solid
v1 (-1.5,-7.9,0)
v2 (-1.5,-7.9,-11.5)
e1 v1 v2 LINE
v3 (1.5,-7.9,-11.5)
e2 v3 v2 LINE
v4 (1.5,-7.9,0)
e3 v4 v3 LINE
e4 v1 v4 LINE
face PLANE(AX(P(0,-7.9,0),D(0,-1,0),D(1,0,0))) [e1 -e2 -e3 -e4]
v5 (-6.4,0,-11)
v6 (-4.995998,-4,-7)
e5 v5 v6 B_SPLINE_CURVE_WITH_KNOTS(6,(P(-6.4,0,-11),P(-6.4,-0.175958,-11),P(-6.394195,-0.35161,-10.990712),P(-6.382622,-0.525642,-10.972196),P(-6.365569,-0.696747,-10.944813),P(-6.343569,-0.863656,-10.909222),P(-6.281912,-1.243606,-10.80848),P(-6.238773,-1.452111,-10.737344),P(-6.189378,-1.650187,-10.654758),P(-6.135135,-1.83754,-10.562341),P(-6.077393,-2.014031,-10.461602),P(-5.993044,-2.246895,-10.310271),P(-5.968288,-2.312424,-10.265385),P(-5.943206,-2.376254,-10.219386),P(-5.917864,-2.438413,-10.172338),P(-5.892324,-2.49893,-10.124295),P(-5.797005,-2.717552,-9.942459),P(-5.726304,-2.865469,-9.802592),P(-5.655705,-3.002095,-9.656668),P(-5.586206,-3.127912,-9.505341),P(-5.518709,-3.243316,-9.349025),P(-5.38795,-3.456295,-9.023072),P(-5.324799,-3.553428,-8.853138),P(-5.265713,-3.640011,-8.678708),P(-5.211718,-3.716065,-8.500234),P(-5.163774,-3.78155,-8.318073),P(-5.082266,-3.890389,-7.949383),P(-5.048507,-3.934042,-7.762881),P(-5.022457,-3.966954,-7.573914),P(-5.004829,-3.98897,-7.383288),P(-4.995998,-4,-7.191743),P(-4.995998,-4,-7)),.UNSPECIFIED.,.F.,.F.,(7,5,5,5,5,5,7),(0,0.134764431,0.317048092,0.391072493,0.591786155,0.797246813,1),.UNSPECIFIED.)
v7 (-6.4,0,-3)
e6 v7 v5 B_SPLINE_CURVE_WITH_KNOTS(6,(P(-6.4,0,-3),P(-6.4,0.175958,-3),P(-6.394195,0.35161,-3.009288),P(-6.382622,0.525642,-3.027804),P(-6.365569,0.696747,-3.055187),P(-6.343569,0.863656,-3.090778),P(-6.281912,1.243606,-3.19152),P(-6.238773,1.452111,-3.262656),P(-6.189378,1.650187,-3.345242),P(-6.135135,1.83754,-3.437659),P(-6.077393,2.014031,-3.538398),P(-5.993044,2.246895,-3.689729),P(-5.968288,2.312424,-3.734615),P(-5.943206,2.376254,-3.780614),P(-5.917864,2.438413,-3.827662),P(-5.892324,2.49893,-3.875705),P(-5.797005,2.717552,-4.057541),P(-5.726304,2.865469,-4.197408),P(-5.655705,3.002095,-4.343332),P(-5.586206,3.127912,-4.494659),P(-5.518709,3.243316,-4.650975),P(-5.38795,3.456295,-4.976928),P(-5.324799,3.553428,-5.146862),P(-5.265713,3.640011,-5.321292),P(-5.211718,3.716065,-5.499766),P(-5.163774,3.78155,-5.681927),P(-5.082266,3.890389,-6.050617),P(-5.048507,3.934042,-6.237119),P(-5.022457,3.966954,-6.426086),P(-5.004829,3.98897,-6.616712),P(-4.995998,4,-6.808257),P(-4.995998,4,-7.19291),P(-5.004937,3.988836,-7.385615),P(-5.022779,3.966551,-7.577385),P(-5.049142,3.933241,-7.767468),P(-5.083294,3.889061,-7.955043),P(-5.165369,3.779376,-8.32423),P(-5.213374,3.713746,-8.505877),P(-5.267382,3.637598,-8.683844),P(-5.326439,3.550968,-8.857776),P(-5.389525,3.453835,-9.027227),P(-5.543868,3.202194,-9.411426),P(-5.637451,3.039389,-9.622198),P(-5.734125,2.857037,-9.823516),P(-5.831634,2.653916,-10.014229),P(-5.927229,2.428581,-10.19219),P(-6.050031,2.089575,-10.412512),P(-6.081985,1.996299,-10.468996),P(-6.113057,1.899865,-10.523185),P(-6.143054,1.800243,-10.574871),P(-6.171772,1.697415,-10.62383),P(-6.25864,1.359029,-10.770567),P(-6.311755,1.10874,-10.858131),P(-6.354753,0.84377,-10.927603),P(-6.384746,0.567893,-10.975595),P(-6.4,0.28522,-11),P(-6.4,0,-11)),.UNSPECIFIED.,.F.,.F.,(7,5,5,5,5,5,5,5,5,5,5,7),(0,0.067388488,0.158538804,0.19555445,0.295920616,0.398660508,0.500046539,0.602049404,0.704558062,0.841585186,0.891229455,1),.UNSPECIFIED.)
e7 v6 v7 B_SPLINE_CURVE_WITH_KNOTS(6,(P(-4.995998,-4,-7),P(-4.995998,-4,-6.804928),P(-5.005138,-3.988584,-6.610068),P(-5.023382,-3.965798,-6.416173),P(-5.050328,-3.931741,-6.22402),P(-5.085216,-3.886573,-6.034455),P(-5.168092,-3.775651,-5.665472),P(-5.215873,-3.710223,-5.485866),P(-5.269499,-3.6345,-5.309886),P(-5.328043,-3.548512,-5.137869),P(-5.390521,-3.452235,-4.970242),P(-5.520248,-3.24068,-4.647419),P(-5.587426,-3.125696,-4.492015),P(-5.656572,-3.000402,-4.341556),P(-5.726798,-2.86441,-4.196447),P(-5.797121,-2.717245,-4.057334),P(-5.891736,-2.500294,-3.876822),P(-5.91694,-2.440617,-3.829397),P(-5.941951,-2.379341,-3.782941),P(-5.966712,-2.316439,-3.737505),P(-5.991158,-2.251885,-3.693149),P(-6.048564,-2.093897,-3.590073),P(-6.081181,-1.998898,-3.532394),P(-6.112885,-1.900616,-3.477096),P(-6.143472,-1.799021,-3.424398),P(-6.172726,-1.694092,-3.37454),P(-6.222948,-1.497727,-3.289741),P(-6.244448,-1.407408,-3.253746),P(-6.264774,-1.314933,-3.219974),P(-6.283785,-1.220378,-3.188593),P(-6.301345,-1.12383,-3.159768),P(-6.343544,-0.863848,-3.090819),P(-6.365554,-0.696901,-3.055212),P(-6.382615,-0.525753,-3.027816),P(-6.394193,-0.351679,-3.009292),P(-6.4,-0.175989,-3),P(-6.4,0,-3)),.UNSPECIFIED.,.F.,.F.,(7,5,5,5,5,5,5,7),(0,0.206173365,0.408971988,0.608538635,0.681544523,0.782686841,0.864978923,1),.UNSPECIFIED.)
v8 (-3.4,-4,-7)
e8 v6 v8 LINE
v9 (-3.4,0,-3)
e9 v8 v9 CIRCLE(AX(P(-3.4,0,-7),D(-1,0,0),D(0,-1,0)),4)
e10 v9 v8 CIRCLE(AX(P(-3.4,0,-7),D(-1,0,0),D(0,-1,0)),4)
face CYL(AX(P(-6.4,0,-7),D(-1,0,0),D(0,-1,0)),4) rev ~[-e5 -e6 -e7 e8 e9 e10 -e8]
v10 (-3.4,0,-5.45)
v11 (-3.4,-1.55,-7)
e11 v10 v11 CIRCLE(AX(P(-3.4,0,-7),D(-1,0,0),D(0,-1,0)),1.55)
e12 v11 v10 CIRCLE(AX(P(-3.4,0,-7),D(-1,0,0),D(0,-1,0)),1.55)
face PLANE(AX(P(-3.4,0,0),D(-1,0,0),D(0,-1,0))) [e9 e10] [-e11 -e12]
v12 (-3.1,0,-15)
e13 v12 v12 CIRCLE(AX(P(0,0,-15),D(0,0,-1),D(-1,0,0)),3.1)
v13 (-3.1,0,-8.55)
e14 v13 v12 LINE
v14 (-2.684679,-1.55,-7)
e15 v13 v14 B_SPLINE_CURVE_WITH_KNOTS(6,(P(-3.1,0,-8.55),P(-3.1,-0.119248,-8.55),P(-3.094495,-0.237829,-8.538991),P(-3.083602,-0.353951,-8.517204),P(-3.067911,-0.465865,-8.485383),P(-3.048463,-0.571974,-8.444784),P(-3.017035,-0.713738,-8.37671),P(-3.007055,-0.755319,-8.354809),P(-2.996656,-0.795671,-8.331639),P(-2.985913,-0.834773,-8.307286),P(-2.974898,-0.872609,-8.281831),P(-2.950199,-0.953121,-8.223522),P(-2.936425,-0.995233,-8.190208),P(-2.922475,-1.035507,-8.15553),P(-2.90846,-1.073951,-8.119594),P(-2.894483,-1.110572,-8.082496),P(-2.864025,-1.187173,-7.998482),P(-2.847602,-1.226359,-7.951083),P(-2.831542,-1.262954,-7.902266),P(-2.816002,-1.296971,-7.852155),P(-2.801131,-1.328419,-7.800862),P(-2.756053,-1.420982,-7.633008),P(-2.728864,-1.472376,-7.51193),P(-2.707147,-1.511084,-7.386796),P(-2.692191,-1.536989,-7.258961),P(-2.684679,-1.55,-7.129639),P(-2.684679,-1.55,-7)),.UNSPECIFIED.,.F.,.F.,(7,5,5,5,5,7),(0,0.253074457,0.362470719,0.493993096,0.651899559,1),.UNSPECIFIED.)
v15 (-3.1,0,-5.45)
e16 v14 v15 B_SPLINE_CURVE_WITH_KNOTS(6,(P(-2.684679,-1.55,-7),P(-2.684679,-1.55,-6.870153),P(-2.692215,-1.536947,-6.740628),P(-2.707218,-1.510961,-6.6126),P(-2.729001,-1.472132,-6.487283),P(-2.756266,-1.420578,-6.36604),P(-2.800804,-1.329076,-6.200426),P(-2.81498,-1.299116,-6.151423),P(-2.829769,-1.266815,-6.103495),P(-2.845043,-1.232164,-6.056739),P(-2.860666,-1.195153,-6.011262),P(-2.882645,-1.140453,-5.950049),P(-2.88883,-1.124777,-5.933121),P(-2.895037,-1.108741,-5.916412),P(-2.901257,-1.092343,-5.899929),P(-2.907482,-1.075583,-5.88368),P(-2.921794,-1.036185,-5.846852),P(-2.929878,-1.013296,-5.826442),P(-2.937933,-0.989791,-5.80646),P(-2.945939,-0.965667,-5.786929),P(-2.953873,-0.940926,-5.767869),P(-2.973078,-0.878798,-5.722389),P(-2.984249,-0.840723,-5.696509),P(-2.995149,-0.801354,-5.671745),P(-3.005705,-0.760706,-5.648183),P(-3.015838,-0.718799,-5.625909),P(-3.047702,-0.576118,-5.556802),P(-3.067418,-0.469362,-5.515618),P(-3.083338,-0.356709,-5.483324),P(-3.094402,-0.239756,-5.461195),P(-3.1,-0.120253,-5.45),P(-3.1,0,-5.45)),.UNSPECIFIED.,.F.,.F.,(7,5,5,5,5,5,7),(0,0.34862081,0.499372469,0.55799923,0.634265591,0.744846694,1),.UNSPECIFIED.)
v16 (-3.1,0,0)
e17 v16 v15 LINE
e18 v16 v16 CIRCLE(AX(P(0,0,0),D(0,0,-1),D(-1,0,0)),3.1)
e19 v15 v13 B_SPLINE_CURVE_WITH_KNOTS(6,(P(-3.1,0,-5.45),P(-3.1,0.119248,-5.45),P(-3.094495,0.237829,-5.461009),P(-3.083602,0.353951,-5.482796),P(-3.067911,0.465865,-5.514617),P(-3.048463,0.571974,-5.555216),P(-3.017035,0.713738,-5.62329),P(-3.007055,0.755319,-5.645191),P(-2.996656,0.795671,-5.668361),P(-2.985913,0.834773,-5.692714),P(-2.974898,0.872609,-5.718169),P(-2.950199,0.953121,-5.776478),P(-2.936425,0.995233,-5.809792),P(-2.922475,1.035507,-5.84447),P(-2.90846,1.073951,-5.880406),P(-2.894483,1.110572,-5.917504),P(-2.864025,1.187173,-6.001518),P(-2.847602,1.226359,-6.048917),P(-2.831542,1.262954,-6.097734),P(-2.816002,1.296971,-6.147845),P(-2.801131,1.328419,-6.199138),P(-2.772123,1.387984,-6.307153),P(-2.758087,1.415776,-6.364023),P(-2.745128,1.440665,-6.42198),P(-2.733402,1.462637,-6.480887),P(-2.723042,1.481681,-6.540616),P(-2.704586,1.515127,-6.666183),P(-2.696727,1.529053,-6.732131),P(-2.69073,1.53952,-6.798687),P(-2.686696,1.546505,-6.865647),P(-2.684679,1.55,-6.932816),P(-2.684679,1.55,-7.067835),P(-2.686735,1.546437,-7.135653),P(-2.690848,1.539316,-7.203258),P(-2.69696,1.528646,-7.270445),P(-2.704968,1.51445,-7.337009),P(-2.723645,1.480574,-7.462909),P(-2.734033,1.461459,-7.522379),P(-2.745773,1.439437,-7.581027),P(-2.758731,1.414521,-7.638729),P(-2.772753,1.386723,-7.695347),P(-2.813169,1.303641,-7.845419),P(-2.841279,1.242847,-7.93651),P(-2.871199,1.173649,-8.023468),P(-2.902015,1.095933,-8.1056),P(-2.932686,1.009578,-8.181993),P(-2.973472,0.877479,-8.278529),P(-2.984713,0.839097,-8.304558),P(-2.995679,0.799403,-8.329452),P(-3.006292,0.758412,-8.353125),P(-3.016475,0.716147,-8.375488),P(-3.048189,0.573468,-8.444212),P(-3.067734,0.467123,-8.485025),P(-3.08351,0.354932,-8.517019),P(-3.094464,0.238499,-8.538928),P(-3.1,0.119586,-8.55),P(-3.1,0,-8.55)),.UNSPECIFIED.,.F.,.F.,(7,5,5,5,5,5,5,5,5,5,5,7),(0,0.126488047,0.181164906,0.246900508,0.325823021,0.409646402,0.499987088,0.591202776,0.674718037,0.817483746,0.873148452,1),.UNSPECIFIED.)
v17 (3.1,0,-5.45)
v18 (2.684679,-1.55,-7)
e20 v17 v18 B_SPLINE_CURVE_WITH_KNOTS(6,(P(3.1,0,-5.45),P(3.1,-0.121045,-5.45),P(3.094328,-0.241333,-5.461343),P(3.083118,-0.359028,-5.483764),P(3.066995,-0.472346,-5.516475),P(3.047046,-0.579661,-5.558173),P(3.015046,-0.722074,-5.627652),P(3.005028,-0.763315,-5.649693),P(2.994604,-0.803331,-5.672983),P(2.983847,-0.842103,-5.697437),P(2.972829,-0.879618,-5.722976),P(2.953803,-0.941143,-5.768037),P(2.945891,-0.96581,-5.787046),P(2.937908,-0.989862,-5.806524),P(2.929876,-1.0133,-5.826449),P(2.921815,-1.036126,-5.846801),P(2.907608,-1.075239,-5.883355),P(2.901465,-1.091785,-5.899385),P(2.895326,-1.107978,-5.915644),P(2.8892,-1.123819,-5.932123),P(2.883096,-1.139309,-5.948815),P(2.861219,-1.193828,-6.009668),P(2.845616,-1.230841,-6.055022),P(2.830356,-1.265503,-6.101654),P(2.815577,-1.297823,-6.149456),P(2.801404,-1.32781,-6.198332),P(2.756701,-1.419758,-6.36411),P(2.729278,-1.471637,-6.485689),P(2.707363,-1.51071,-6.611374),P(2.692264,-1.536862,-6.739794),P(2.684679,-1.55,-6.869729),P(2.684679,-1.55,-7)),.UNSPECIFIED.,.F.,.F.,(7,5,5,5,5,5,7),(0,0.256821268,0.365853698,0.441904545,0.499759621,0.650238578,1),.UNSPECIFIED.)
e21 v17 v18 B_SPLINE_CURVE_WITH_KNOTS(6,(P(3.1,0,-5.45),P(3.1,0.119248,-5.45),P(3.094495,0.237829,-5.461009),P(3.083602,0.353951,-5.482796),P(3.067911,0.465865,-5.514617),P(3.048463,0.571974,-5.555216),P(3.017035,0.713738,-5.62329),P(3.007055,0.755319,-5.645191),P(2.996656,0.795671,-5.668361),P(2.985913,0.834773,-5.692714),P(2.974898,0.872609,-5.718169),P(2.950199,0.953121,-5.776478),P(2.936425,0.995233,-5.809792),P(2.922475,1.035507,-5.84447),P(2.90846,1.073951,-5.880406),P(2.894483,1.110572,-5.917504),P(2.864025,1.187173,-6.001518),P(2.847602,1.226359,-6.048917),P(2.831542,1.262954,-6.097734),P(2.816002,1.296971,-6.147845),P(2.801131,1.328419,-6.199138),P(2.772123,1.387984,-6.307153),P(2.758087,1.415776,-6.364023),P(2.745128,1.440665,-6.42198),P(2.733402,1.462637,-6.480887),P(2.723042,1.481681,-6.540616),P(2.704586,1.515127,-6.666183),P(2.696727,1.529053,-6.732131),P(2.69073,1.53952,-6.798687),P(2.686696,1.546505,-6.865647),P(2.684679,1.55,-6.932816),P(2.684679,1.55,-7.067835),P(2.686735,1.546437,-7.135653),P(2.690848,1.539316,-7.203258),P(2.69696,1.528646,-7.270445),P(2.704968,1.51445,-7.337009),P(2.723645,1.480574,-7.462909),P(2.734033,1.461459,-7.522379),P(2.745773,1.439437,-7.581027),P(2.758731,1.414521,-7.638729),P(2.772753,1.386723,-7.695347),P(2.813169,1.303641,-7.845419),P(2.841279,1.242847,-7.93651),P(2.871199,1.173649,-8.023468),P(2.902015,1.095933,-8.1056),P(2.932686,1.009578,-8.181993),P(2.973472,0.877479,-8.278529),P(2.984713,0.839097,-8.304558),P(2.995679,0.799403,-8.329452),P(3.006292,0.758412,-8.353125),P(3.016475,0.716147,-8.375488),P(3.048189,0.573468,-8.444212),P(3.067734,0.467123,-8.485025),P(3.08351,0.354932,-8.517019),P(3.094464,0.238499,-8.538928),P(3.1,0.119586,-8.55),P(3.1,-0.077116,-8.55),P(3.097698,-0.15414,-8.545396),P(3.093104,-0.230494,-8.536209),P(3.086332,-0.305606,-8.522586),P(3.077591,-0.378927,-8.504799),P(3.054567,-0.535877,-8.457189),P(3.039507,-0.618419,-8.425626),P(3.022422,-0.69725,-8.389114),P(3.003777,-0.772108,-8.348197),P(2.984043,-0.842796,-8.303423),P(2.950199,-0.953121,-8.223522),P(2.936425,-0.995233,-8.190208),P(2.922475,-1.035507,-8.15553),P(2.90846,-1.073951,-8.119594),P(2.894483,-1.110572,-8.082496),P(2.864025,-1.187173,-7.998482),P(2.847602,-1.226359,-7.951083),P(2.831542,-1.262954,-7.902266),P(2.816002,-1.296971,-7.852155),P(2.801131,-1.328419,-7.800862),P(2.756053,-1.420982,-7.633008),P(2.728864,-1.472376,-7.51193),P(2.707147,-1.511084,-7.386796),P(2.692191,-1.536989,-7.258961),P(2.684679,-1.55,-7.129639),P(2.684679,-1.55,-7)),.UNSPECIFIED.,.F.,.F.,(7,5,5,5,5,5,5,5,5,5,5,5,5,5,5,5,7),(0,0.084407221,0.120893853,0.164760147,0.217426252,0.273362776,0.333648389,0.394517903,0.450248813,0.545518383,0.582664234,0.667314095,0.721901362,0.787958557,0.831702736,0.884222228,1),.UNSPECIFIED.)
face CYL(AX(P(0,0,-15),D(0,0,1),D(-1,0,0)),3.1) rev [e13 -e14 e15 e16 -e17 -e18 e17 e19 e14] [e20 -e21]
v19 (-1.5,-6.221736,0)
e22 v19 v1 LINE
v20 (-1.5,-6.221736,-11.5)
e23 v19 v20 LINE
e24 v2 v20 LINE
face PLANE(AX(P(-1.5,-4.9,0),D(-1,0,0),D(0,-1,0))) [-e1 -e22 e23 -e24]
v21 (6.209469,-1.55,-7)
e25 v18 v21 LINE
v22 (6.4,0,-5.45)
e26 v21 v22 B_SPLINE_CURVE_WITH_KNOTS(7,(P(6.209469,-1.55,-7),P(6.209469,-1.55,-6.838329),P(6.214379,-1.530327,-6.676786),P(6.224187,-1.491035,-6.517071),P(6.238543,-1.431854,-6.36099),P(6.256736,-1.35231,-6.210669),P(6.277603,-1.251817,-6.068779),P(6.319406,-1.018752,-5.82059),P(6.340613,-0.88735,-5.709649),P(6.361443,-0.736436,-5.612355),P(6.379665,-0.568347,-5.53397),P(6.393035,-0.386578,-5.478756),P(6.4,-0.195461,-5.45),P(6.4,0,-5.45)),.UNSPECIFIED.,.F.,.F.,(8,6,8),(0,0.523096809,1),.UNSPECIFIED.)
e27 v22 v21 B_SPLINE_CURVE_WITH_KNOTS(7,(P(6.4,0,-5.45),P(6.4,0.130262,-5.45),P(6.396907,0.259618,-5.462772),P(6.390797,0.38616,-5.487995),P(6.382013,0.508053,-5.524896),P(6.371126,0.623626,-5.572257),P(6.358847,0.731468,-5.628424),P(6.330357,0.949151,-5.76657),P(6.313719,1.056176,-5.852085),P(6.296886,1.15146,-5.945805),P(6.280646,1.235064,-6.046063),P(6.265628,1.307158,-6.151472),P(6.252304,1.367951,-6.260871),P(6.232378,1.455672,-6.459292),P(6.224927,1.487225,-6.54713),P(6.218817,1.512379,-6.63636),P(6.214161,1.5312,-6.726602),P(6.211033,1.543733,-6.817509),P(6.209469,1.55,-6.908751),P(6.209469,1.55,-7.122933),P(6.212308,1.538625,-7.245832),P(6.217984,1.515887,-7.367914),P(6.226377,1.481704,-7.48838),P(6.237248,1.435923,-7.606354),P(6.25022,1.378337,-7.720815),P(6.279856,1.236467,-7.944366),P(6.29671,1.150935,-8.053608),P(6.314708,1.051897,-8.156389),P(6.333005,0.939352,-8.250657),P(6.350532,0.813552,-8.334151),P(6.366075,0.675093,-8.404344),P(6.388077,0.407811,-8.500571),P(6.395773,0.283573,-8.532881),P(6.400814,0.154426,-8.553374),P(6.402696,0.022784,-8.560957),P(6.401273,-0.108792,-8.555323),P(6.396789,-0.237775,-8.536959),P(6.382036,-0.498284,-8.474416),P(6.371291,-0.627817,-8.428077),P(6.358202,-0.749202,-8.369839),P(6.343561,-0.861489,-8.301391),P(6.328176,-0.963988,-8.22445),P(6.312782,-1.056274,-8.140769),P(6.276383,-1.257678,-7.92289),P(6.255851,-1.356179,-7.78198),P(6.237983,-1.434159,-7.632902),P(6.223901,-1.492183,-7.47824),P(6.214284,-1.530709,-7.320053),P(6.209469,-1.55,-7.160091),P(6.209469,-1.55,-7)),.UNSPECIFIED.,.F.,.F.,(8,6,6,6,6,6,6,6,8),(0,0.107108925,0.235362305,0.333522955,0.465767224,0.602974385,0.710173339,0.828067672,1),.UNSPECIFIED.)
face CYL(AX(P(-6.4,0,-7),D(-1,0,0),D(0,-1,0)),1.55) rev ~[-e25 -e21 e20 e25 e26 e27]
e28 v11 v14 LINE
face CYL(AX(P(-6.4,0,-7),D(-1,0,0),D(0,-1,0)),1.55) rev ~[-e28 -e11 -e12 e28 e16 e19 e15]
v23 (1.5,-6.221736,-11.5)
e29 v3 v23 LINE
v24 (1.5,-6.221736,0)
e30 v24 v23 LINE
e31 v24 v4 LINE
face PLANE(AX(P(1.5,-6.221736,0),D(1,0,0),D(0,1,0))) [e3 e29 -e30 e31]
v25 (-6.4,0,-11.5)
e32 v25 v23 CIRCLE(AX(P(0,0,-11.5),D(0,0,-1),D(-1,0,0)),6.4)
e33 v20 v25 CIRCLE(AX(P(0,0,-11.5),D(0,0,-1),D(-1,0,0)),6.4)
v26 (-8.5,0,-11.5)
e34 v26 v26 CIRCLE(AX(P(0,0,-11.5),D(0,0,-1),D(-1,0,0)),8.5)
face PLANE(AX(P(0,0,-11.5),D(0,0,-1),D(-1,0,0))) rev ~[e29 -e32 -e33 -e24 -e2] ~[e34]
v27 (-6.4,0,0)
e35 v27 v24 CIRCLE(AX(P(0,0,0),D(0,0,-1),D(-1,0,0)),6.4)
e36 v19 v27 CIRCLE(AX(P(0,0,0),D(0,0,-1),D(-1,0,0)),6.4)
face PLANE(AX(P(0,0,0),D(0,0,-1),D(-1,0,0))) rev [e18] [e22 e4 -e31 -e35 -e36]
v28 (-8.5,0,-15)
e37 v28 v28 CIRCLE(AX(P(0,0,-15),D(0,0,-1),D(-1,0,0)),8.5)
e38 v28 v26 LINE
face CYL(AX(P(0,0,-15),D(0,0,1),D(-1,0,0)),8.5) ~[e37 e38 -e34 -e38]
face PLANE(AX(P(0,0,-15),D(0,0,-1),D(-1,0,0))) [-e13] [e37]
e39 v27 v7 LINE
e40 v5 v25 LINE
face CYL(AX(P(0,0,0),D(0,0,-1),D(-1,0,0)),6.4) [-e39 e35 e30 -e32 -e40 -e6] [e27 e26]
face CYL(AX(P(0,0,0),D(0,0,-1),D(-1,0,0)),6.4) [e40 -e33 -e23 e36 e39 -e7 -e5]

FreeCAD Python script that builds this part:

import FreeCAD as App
import Part
import Sketcher

V = App.Vector

doc = App.newDocument("Part")
body = doc.addObject("PartDesign::Body", "Body")

# Sketch on XZ plane
sketch1 = body.newObject("Sketcher::SketchObject", "Sketch")
sketch1.AttachmentSupport = (doc.getObject("XZ_Plane"), [""])
sketch1.MapMode = "FlatFace"
sketch1.addGeometry(Part.LineSegment(V(-3.1, 0, 0), V(-3.1, -15, 0)), False)
sketch1.addGeometry(Part.LineSegment(V(-3.1, -15, 0), V(-8.5, -15, 0)), False)
sketch1.addGeometry(Part.LineSegment(V(-8.5, -15, 0), V(-8.5, -11.5, 0)), False)
sketch1.addGeometry(Part.LineSegment(V(-8.5, -11.5, 0), V(-6.4, -11.5, 0)), False)
sketch1.addGeometry(Part.LineSegment(V(-6.4, -11.5, 0), V(-6.4, 0, 0)), False)
sketch1.addGeometry(Part.LineSegment(V(-6.4, 0, 0), V(-3.1, 0, 0)), False)
sketch1.addConstraint(Sketcher.Constraint("Coincident", 0, 2, 1, 1))
sketch1.addConstraint(Sketcher.Constraint("Coincident", 1, 2, 2, 1))
sketch1.addConstraint(Sketcher.Constraint("Coincident", 2, 2, 3, 1))
sketch1.addConstraint(Sketcher.Constraint("Coincident", 3, 2, 4, 1))
sketch1.addConstraint(Sketcher.Constraint("Coincident", 4, 2, 5, 1))
sketch1.addConstraint(Sketcher.Constraint("Coincident", 5, 2, 0, 1))
sketch1.addConstraint(Sketcher.Constraint("Vertical", 0))
sketch1.addConstraint(Sketcher.Constraint("Horizontal", 1))
sketch1.addConstraint(Sketcher.Constraint("Vertical", 2))
sketch1.addConstraint(Sketcher.Constraint("Horizontal", 3))
sketch1.addConstraint(Sketcher.Constraint("Vertical", 4))
sketch1.addConstraint(Sketcher.Constraint("Horizontal", 5))
sketch1.addConstraint(Sketcher.Constraint("PointOnObject", 4, 2, -1))
sketch1.addConstraint(Sketcher.Constraint("DistanceY", 2, 1, 2, 2, 3.5))
sketch1.addConstraint(Sketcher.Constraint("DistanceX", 0, 2, -1, 1, 3.1))
sketch1.addConstraint(Sketcher.Constraint("DistanceX", 1, 2, -1, 1, 8.5))
sketch1.addConstraint(Sketcher.Constraint("DistanceX", 3, 2, -1, 1, 6.4))
sketch1.addConstraint(Sketcher.Constraint("DistanceY", 0, 2, 0, 1, 15.0))
revolution = body.newObject("PartDesign::Revolution", "Revolution")
revolution.Profile = sketch1
revolution.ReferenceAxis = (sketch1, ["V_Axis"])
revolution.Angle = 360

# Sketch on YZ plane
sketch2 = body.newObject("Sketcher::SketchObject", "Sketch001")
sketch2.AttachmentSupport = (doc.getObject("YZ_Plane"), [""])
sketch2.MapMode = "FlatFace"
sketch2.AttachmentOffset = App.Placement(V(0, 0, -6.4), App.Rotation())
sketch2.addGeometry(Part.Circle(V(0, -7, 0), V(0, 0, 1), 1.55), False)
sketch2.addConstraint(Sketcher.Constraint("PointOnObject", 0, 3, -2))
sketch2.addConstraint(Sketcher.Constraint("Diameter", 0, 3.1))
sketch2.addConstraint(Sketcher.Constraint("DistanceY", 0, 3, -1, 1, 7.0))
pocket1 = body.newObject("PartDesign::Pocket", "Pocket")
pocket1.Profile = sketch2
pocket1.Length = 30
pocket1.Reversed = True

# Sketch on YZ plane
sketch3 = body.newObject("Sketcher::SketchObject", "Sketch002")
sketch3.AttachmentSupport = (doc.getObject("YZ_Plane"), [""])
sketch3.MapMode = "FlatFace"
sketch3.AttachmentOffset = App.Placement(V(0, 0, -6.4), App.Rotation())
sketch3.addGeometry(Part.Circle(V(0, -7, 0), V(0, 0, 1), 4), False)
sketch3.addGeometry(Part.Circle(V(0, -7, 0), V(0, 0, 1), 1.55), False)
sketch3.addConstraint(Sketcher.Constraint("Coincident", 1, 3, 0, 3))
sketch3.addConstraint(Sketcher.Constraint("PointOnObject", 0, 3, -2))
sketch3.addConstraint(Sketcher.Constraint("Diameter", 0, 8.0))
sketch3.addConstraint(Sketcher.Constraint("Diameter", 1, 3.1))
sketch3.addConstraint(Sketcher.Constraint("DistanceY", 0, 3, -1, 1, 7.0))
pocket2 = body.newObject("PartDesign::Pocket", "Pocket001")
pocket2.Profile = sketch3
pocket2.Length = 3
pocket2.Reversed = True

# Sketch on XY plane
sketch4 = body.newObject("Sketcher::SketchObject", "Sketch003")
sketch4.AttachmentSupport = (doc.getObject("XY_Plane"), [""])
sketch4.MapMode = "FlatFace"
sketch4.addGeometry(Part.LineSegment(V(1.5, -4.9, 0), V(-1.5, -4.9, 0)), False)
sketch4.addGeometry(Part.LineSegment(V(-1.5, -4.9, 0), V(-1.5, -7.9, 0)), False)
sketch4.addGeometry(Part.LineSegment(V(-1.5, -7.9, 0), V(1.5, -7.9, 0)), False)
sketch4.addGeometry(Part.LineSegment(V(1.5, -7.9, 0), V(1.5, -4.9, 0)), False)
sketch4.addConstraint(Sketcher.Constraint("Coincident", 0, 2, 1, 1))
sketch4.addConstraint(Sketcher.Constraint("Coincident", 1, 2, 2, 1))
sketch4.addConstraint(Sketcher.Constraint("Coincident", 2, 2, 3, 1))
sketch4.addConstraint(Sketcher.Constraint("Coincident", 3, 2, 0, 1))
sketch4.addConstraint(Sketcher.Constraint("Horizontal", 0))
sketch4.addConstraint(Sketcher.Constraint("Vertical", 1))
sketch4.addConstraint(Sketcher.Constraint("Horizontal", 2))
sketch4.addConstraint(Sketcher.Constraint("Vertical", 3))
sketch4.addConstraint(Sketcher.Constraint("Equal", 2, 1))
sketch4.addConstraint(Sketcher.Constraint("DistanceX", 0, 2, -1, 1, 1.5))
sketch4.addConstraint(Sketcher.Constraint("DistanceX", -1, 1, 2, 2, 1.5))
sketch4.addConstraint(Sketcher.Constraint("DistanceY", 0, 2, -1, 1, 4.9))
pad1 = body.newObject("PartDesign::Pad", "Pad")
pad1.Profile = sketch4
pad1.Length = 11.5
pad1.Reversed = True

doc.recompute()
